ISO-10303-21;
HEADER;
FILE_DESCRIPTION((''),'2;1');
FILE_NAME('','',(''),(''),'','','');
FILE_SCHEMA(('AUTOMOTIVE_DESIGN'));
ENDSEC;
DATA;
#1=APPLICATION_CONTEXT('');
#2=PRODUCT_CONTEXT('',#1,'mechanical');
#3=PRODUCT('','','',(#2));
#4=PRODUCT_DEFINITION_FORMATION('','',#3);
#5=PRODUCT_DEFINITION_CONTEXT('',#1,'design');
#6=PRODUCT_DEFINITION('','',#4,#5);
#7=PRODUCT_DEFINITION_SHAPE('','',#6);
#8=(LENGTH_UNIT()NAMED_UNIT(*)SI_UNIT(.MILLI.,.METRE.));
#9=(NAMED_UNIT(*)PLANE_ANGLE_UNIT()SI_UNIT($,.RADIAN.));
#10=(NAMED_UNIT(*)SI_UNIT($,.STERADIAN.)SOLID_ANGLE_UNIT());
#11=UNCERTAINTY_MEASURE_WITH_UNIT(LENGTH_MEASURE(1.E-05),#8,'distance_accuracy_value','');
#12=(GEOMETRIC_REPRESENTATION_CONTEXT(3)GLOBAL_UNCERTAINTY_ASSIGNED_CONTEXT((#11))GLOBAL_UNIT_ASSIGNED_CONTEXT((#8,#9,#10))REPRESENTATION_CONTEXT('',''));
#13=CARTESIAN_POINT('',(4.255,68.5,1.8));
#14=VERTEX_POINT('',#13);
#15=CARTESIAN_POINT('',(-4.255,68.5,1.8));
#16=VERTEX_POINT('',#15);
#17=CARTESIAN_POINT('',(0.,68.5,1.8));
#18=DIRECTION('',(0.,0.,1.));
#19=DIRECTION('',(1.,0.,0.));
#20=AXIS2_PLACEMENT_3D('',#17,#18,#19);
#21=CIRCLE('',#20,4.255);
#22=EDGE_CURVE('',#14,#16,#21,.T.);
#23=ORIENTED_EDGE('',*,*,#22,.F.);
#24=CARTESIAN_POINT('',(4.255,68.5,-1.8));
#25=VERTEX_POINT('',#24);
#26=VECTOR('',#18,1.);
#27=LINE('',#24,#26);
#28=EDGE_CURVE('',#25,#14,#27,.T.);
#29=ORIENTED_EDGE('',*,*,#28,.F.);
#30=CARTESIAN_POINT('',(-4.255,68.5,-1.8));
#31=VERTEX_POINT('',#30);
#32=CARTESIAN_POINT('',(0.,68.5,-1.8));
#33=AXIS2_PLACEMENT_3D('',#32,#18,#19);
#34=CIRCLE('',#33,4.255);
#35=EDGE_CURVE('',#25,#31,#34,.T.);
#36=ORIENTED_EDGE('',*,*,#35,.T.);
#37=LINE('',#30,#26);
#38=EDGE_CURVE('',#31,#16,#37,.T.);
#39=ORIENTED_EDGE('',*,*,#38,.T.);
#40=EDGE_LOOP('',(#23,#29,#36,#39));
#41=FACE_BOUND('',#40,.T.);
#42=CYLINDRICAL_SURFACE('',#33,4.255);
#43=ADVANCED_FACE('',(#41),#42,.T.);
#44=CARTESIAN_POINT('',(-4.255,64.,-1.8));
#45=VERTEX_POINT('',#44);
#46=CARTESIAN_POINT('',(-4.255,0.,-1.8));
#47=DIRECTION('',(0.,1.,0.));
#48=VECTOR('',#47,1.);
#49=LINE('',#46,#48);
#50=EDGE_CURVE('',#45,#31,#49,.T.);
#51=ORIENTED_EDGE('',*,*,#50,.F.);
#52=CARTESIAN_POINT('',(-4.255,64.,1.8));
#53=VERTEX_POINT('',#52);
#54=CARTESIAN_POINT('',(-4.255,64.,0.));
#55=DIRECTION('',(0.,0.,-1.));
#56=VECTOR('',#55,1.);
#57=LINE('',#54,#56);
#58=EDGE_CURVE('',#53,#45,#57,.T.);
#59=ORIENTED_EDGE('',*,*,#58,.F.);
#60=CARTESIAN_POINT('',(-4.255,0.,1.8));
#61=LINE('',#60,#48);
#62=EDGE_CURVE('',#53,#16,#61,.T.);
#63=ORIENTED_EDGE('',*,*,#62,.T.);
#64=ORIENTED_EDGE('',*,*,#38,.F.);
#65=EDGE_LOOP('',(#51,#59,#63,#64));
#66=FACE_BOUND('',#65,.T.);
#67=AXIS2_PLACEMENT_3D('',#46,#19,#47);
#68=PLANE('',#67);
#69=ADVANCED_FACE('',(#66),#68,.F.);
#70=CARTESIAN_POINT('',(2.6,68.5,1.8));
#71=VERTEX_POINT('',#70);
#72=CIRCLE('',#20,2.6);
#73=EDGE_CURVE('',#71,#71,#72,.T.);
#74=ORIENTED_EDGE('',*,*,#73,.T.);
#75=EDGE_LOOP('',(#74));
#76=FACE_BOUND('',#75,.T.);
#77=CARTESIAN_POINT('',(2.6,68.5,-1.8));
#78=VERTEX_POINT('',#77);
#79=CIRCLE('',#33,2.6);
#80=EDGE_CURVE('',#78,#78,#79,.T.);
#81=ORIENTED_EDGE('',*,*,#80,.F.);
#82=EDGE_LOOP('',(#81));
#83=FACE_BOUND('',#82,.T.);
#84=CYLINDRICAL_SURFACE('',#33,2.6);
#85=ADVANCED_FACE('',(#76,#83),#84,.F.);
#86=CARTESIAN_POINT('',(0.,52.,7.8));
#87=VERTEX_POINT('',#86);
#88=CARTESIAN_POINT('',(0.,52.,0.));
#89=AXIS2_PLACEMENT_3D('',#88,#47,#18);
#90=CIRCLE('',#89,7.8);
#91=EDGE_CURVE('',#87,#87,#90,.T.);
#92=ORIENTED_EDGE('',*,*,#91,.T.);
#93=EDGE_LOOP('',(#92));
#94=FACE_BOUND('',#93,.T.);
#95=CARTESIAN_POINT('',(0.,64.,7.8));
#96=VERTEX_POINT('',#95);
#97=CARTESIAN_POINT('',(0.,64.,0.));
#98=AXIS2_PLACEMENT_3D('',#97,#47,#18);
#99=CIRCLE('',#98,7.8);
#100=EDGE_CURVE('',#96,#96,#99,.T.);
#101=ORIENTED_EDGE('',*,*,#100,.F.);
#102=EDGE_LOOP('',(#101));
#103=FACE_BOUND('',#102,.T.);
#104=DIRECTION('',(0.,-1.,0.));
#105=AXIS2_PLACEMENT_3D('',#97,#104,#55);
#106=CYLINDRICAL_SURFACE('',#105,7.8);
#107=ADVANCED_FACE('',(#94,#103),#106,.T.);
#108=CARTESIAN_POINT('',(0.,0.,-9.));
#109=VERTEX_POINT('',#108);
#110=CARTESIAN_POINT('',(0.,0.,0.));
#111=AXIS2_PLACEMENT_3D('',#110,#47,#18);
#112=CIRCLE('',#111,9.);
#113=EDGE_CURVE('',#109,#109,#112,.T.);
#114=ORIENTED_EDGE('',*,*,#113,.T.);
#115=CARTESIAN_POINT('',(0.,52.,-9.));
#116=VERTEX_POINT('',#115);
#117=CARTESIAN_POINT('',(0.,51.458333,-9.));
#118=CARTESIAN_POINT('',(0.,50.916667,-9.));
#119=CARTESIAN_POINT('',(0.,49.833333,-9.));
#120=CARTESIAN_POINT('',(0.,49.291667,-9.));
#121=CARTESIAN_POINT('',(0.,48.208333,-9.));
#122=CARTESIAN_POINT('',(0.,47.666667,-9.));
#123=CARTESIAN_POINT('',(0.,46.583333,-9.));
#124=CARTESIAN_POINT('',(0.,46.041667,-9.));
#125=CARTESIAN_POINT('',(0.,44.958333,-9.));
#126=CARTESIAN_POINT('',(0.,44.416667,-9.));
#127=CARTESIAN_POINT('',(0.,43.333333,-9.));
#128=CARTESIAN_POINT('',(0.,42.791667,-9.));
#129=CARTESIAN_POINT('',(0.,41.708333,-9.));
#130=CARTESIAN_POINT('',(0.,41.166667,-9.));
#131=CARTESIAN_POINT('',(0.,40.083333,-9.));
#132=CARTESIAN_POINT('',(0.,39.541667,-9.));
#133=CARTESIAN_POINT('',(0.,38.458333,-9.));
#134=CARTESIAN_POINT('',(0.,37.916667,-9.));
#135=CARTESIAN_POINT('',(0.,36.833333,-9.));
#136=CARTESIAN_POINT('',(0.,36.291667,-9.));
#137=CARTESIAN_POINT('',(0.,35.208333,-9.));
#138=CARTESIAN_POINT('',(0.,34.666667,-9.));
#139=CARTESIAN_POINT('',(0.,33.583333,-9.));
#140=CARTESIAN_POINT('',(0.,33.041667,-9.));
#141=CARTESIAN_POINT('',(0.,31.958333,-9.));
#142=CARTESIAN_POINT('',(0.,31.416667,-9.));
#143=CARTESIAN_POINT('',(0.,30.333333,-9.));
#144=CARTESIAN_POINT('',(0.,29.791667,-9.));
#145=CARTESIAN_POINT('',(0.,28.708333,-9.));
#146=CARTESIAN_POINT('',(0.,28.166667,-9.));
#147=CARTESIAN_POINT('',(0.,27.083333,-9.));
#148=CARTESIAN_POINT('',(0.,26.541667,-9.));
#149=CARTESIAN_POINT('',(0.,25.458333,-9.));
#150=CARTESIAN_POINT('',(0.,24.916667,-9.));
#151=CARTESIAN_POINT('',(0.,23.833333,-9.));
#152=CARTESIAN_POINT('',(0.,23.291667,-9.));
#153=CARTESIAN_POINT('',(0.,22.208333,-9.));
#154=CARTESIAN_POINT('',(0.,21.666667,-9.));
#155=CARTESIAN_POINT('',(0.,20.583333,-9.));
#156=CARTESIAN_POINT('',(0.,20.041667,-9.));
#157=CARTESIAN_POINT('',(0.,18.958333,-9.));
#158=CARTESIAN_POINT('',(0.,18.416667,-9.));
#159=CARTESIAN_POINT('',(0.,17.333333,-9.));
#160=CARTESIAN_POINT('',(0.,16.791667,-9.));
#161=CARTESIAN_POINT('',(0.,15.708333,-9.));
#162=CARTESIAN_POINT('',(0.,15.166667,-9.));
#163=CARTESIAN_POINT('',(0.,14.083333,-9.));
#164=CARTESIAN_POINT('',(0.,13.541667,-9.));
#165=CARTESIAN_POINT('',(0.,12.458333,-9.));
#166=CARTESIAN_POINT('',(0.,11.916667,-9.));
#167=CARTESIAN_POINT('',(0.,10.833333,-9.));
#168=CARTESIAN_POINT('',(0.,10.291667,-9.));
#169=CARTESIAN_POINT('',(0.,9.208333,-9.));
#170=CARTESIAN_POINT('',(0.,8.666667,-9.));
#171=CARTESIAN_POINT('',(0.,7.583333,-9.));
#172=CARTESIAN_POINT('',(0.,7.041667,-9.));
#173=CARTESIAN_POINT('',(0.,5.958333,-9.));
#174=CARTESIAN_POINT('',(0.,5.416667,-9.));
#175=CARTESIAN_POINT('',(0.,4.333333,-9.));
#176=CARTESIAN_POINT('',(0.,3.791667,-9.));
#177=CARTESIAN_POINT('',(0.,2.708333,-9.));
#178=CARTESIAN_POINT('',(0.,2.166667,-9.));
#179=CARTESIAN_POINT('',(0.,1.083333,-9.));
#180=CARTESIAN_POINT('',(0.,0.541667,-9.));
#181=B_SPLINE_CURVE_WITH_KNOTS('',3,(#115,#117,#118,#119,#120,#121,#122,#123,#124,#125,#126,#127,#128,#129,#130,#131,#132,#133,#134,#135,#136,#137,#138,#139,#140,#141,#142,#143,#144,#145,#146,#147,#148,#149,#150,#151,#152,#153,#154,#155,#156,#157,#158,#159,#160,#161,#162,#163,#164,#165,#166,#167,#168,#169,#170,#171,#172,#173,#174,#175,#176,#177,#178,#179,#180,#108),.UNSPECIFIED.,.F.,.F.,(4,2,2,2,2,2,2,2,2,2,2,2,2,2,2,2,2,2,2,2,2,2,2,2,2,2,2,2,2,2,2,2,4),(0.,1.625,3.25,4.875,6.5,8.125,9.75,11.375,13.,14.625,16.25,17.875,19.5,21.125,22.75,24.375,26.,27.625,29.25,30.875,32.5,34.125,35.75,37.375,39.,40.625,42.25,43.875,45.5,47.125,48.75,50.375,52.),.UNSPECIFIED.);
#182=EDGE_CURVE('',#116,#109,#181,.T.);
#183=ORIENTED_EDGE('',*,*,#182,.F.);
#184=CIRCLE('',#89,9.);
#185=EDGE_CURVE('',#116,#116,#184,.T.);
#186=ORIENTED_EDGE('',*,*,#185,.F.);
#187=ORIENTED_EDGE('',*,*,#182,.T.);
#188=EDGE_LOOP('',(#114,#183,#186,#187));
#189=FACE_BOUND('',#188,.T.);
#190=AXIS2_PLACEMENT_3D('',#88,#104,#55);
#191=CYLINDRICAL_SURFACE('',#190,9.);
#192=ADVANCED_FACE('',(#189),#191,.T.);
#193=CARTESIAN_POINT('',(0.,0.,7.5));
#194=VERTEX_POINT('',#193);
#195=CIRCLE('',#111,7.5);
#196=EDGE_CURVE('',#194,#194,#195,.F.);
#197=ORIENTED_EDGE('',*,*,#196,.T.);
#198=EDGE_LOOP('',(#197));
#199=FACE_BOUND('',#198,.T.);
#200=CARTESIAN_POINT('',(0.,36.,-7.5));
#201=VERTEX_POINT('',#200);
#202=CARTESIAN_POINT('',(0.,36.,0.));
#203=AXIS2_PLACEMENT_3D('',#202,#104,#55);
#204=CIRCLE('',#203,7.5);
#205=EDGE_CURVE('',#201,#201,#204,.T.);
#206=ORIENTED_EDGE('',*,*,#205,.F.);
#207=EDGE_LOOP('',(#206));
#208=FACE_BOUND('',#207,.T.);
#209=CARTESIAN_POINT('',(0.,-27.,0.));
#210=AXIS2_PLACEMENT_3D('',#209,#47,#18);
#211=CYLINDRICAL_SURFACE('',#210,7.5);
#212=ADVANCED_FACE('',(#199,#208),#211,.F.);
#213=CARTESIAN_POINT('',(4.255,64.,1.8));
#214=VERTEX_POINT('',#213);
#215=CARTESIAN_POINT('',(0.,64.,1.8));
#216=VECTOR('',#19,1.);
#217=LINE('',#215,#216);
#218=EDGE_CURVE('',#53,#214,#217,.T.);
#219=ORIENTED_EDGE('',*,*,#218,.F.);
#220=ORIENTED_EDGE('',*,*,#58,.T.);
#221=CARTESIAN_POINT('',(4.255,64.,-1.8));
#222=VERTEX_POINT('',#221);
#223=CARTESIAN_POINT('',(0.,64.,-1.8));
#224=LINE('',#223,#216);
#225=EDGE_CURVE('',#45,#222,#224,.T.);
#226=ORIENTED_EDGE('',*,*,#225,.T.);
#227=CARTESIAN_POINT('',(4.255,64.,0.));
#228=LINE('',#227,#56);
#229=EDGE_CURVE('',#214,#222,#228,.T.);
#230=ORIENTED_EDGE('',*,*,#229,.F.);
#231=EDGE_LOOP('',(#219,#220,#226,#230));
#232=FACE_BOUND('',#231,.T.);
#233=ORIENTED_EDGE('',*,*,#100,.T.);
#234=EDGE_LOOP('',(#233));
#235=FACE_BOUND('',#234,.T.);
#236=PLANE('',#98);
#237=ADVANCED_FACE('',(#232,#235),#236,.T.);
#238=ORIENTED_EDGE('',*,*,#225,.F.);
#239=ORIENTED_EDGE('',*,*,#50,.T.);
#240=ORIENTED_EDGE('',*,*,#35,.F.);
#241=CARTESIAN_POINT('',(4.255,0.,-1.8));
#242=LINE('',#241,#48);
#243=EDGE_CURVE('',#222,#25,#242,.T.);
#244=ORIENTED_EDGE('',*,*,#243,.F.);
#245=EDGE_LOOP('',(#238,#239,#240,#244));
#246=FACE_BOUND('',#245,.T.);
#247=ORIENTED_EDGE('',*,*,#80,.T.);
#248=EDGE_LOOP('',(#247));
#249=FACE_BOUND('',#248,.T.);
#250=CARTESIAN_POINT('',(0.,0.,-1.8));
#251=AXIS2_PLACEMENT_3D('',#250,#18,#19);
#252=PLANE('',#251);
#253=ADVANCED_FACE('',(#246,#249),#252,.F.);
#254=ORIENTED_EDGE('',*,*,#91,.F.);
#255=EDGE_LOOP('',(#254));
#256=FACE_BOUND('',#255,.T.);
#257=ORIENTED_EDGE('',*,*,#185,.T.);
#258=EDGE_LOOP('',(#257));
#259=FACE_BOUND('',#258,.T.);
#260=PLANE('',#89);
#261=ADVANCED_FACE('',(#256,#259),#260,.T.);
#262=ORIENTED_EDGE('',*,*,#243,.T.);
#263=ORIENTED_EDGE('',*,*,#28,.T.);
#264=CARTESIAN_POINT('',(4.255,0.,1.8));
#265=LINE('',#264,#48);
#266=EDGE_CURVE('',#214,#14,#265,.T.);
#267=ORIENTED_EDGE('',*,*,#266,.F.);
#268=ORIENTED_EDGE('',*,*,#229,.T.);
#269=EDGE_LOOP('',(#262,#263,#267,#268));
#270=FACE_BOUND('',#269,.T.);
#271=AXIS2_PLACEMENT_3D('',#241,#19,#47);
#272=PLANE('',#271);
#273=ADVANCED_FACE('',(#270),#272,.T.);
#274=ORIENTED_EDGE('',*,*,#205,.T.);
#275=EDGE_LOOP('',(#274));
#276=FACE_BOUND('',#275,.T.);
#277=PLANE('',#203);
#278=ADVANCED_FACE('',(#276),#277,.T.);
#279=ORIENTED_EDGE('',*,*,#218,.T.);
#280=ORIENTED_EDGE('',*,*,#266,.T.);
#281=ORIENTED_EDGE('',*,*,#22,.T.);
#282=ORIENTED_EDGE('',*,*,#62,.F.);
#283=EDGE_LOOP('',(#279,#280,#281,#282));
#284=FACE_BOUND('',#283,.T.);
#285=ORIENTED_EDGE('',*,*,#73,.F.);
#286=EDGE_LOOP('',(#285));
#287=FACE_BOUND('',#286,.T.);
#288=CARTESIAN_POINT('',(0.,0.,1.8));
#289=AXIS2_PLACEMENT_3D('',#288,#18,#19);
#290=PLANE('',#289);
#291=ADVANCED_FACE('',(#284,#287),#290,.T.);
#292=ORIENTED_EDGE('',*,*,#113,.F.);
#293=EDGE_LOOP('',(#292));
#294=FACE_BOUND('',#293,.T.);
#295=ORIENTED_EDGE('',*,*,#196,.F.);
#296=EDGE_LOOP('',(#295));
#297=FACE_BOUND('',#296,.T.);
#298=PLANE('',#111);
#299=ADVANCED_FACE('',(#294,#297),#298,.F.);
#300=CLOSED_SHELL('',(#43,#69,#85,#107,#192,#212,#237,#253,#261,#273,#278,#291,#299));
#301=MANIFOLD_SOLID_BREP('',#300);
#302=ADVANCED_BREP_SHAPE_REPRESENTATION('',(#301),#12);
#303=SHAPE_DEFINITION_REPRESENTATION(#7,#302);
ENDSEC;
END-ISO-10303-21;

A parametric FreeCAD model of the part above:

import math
import FreeCAD as App
import Part
import Sketcher
Q = App.Units.Quantity

doc = App.newDocument("Part")
body = doc.addObject("PartDesign::Body", "Body")

# Sketch on XZ plane
sketch1 = body.newObject("Sketcher::SketchObject", "Sketch")
sketch1.AttachmentSupport = (doc.getObject("XZ_Plane"), [""])
sketch1.MapMode = "FlatFace"
sketch1.addGeometry(Part.Circle(App.Vector(0, 0, 0), App.Vector(0, 0, 1), 9), False)
sketch1.addConstraint([
    Sketcher.Constraint("Coincident", 0, 3, -1, 1),
    Sketcher.Constraint("Diameter", 0, Q("18 mm")),
])
pad1 = body.newObject("PartDesign::Pad", "Pad")
pad1.Profile = sketch1
pad1.Length = 52
pad1.Reversed = True

# Sketch on XZ plane
sketch2 = body.newObject("Sketcher::SketchObject", "Sketch001")
sketch2.AttachmentSupport = (doc.getObject("XZ_Plane"), [""])
sketch2.MapMode = "FlatFace"
sketch2.AttachmentOffset = App.Placement(App.Vector(0, 0, -52), App.Rotation())
sketch2.addGeometry(Part.Circle(App.Vector(0, 0, 0), App.Vector(0, 0, 1), 8), False)
sketch2.addConstraint([
    Sketcher.Constraint("Coincident", 0, 3, -1, 1),
    Sketcher.Constraint("Diameter", 0, Q("15.6 mm")),
])
pad2 = body.newObject("PartDesign::Pad", "Pad001")
pad2.Profile = sketch2
pad2.Length = 12
pad2.Reversed = True

# Sketch on XY plane
sketch3 = body.newObject("Sketcher::SketchObject", "Sketch002")
sketch3.AttachmentSupport = (doc.getObject("XY_Plane"), [""])
sketch3.MapMode = "FlatFace"
sketch3.addGeometry([
    Part.LineSegment(App.Vector(-4.3, 59.5, 0), App.Vector(4.3, 59.5, 0)),  # 0
    Part.LineSegment(App.Vector(4.3, 59.5, 0), App.Vector(4.3, 68.5, 0)),  # 1
    Part.ArcOfCircle(Part.Circle(App.Vector(0, 68.5, 0), App.Vector(0, 0, 1), 4.3), math.radians(0), math.radians(180)),  # 2
    Part.LineSegment(App.Vector(-4.3, 68.5, 0), App.Vector(-4.3, 59.5, 0)),  # 3
    Part.Circle(App.Vector(0, 68.5, 0), App.Vector(0, 0, 1), 2.6),  # 4
], False)
sketch3.addConstraint([
    Sketcher.Constraint("Coincident", 0, 2, 1, 1),
    Sketcher.Constraint("Tangent", 1, 2, 2, 1),
    Sketcher.Constraint("Tangent", 2, 2, 3, 1),
    Sketcher.Constraint("Coincident", 3, 2, 0, 1),
    Sketcher.Constraint("Horizontal", 0),
    Sketcher.Constraint("Vertical", 1),
    Sketcher.Constraint("Vertical", 3),
    Sketcher.Constraint("Coincident", 4, 3, 2, 3),
    Sketcher.Constraint("PointOnObject", 2, 3, -2),
    Sketcher.Constraint("Diameter", 4, Q("5.2 mm")),
    Sketcher.Constraint("DistanceY", 1, 1, 1, 2, Q("9 mm")),
    Sketcher.Constraint("Radius", 2, Q("4.255 mm")),
    Sketcher.Constraint("DistanceY", -1, 1, 2, 3, Q("68.5 mm")),
])
pad3 = body.newObject("PartDesign::Pad", "Pad002")
pad3.Profile = sketch3
pad3.Type = "TwoLengths"
pad3.Length = 1.8
pad3.Length2 = 1.8

# Sketch on XY plane
sketch4 = body.newObject("Sketcher::SketchObject", "Sketch003")
sketch4.AttachmentSupport = (doc.getObject("XY_Plane"), [""])
sketch4.MapMode = "FlatFace"
sketch4.addGeometry([
    Part.LineSegment(App.Vector(-4.7, 0, 0), App.Vector(-4.7, -16.5, 0)),  # 0
    Part.ArcOfCircle(Part.Circle(App.Vector(0, -16.5, 0), App.Vector(0, 0, 1), 4.7), math.radians(180), math.radians(360)),  # 1
    Part.LineSegment(App.Vector(4.7, -16.5, 0), App.Vector(4.7, 0, 0)),  # 2
    Part.LineSegment(App.Vector(4.7, 0, 0), App.Vector(-4.7, 0, 0)),  # 3
    Part.Circle(App.Vector(0, -16.5, 0), App.Vector(0, 0, 1), 1.6),  # 4
], False)
sketch4.addConstraint([
    Sketcher.Constraint("Tangent", 0, 2, 1, 1),
    Sketcher.Constraint("Tangent", 1, 2, 2, 1),
    Sketcher.Constraint("Coincident", 2, 2, 3, 1),
    Sketcher.Constraint("Coincident", 3, 2, 0, 1),
    Sketcher.Constraint("Vertical", 0),
    Sketcher.Constraint("Vertical", 2),
    Sketcher.Constraint("Horizontal", 3),
    Sketcher.Constraint("Coincident", 4, 3, 1, 3),
    Sketcher.Constraint("Symmetric", 2, 2, 3, 2, -1, 1),
    Sketcher.Constraint("Diameter", 4, Q("3.2 mm")),
    Sketcher.Constraint("Radius", 1, Q("4.65 mm")),
    Sketcher.Constraint("DistanceY", 0, 2, 0, 1, Q("16.5 mm")),
])
pad4 = body.newObject("PartDesign::Pad", "Pad003")
pad4.Profile = sketch4
pad4.Type = "TwoLengths"
pad4.Length = 1.8
pad4.Length2 = 1.8

# Sketch on XZ plane
sketch5 = body.newObject("Sketcher::SketchObject", "Sketch004")
sketch5.AttachmentSupport = (doc.getObject("XZ_Plane"), [""])
sketch5.MapMode = "FlatFace"
sketch5.addGeometry(Part.Circle(App.Vector(0, 0, 0), App.Vector(0, 0, 1), 8), False)
sketch5.addConstraint([
    Sketcher.Constraint("Coincident", 0, 3, -1, 1),
    Sketcher.Constraint("Diameter", 0, Q("15 mm")),
])
pocket1 = body.newObject("PartDesign::Pocket", "Pocket")
pocket1.Profile = sketch5
pocket1.Type = "TwoLengths"
pocket1.Length = 27
pocket1.Length2 = 36
pocket1.Reversed = True

doc.recompute()
